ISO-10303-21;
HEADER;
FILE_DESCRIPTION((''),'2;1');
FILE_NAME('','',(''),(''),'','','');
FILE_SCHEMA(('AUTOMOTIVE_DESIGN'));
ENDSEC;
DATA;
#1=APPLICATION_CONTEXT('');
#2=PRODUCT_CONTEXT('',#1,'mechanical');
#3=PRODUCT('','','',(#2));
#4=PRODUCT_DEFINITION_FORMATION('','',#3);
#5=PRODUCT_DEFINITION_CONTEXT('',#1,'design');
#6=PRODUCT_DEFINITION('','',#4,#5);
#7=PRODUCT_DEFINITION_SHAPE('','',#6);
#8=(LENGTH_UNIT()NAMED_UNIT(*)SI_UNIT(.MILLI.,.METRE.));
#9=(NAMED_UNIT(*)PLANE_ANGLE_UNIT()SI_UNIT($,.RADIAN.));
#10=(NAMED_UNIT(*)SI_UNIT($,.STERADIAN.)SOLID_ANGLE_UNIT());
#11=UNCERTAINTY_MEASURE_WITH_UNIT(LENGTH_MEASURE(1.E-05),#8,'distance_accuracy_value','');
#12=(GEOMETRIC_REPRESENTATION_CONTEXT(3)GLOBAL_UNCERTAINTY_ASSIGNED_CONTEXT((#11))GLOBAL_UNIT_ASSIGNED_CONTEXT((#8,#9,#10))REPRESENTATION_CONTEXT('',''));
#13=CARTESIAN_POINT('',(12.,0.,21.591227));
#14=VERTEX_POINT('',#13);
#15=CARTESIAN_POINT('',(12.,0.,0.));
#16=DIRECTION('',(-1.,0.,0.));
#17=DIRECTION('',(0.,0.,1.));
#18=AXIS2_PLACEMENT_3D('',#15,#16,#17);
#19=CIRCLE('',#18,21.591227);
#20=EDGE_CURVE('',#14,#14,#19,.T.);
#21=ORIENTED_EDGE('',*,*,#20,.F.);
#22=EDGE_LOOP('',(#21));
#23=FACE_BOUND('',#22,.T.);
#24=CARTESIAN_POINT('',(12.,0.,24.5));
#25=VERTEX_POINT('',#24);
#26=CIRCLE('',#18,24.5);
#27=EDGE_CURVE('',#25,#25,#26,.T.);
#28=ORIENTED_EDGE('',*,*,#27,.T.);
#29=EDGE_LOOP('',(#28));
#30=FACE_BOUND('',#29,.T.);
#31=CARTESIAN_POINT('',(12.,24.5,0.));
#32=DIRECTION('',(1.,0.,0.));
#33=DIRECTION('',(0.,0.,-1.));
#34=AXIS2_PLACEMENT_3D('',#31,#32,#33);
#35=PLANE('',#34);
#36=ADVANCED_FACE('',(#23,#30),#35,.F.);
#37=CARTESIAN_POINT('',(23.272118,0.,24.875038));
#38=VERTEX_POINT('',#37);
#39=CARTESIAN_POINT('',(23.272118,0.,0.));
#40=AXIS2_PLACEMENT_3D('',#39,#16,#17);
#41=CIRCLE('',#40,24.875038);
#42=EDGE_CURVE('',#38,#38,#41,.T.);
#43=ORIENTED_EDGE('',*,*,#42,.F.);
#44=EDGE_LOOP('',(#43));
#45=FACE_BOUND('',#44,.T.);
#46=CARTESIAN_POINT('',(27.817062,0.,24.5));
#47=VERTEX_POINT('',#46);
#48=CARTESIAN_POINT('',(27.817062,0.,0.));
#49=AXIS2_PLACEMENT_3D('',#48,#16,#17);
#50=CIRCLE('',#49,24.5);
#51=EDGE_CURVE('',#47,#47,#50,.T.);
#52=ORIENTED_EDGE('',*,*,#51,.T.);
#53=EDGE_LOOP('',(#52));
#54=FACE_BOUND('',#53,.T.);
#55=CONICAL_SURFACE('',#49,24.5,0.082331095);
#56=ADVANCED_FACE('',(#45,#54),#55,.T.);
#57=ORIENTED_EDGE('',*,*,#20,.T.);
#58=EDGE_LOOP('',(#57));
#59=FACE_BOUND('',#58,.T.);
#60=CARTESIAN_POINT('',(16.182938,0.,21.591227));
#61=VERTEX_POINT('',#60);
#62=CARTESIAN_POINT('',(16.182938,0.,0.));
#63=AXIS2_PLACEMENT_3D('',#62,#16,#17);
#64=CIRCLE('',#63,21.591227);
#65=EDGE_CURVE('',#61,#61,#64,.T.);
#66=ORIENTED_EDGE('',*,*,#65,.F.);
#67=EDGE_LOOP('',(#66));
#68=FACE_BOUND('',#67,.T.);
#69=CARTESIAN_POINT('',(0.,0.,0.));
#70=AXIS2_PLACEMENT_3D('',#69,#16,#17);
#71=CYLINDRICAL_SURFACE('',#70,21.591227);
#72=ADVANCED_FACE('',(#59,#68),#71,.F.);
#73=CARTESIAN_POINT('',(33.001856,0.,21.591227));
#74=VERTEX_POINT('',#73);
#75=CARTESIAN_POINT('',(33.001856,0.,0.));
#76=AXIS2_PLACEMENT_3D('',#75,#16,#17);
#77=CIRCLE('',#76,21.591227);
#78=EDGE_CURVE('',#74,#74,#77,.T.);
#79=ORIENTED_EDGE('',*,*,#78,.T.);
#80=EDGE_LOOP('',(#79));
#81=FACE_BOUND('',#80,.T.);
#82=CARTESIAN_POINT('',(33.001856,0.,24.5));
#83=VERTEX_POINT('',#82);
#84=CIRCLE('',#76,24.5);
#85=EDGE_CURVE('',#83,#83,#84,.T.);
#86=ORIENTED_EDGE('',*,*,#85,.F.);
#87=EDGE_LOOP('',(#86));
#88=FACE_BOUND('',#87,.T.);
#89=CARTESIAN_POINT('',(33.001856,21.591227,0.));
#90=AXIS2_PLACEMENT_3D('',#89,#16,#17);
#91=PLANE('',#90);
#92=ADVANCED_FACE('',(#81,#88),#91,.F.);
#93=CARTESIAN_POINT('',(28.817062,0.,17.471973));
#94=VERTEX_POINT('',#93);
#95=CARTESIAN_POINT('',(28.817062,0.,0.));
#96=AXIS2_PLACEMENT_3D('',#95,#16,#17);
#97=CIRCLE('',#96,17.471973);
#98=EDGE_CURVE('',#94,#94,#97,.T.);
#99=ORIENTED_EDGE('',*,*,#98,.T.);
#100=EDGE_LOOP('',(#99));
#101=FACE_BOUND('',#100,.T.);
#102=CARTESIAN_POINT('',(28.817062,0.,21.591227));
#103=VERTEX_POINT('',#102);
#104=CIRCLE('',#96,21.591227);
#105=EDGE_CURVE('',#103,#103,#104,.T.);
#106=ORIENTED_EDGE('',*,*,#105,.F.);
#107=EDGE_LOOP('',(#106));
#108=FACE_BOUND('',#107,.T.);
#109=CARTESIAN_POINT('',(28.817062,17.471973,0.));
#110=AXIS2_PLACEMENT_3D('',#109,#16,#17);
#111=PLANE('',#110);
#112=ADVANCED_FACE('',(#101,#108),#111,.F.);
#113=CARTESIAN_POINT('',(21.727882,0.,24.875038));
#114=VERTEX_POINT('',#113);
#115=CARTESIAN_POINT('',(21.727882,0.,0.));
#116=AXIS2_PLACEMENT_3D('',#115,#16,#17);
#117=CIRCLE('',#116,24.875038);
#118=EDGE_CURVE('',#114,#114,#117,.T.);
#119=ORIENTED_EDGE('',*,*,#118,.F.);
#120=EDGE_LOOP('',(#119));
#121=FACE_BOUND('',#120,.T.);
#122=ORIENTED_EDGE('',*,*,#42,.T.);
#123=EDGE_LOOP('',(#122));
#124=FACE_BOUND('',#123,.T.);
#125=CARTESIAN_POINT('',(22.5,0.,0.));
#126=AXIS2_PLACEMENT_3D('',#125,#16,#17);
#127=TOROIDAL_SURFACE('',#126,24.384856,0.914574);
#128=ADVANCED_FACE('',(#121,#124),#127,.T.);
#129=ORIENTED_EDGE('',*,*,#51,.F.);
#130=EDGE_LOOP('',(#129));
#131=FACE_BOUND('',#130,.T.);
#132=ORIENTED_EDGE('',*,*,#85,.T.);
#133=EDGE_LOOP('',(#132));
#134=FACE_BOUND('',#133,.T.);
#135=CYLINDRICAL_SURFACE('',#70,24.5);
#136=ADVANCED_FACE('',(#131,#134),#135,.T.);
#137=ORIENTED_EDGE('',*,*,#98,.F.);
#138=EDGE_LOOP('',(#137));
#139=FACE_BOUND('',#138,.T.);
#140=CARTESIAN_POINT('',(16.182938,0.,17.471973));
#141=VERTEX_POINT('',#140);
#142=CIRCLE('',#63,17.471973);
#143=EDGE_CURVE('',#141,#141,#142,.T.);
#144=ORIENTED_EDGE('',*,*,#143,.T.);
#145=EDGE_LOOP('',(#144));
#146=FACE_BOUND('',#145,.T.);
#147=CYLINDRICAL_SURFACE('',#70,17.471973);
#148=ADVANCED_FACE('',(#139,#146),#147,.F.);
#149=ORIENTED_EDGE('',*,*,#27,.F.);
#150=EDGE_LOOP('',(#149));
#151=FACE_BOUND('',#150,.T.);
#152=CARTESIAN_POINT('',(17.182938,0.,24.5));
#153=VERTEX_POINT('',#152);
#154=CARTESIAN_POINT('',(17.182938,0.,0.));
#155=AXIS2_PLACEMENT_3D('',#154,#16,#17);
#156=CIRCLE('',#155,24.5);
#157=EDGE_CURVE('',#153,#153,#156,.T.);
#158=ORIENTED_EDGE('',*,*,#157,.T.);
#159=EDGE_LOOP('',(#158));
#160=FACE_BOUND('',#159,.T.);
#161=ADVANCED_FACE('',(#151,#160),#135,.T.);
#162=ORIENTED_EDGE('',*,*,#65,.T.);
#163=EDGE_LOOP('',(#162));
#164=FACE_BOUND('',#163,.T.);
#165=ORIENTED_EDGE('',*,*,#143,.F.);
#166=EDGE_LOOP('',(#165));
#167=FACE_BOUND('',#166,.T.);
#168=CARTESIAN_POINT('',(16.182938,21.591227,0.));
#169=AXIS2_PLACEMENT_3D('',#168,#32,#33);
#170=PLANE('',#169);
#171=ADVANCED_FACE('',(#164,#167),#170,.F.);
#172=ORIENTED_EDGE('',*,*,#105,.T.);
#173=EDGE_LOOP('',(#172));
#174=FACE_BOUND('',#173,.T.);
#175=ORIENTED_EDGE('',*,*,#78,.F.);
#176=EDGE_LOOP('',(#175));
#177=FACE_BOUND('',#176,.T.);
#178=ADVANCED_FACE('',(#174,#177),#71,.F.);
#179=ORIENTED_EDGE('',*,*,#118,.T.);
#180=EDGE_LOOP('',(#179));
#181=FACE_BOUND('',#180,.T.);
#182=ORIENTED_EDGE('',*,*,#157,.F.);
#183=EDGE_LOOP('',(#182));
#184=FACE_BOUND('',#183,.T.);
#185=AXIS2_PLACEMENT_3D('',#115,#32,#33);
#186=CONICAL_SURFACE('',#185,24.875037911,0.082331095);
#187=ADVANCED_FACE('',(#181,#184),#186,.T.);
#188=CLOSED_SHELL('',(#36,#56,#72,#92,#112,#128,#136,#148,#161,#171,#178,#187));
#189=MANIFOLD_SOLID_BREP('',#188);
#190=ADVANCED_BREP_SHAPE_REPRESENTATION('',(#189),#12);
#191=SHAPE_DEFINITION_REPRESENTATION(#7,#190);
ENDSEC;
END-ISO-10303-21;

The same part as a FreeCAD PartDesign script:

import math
import FreeCAD as App
import Part
import Sketcher

V = App.Vector

doc = App.newDocument("Part")
body = doc.addObject("PartDesign::Body", "Body")

sketch1 = body.newObject("Sketcher::SketchObject", "Sketch")
sketch1.AttachmentSupport = (doc.getObject("XY_Plane"), [""])
sketch1.MapMode = "FlatFace"
sketch1.addGeometry([
    Part.LineSegment(V(12, 24.5, 0), V(12, 21.6, 0)),
    Part.LineSegment(V(12, 21.6, 0), V(16.2, 21.6, 0)),
    Part.LineSegment(V(16.2, 21.6, 0), V(16.2, 17.5, 0)),
    Part.LineSegment(V(16.2, 17.5, 0), V(28.8, 17.5, 0)),
    Part.LineSegment(V(28.8, 17.5, 0), V(28.8, 21.6, 0)),
    Part.LineSegment(V(28.8, 21.6, 0), V(33, 21.6, 0)),
    Part.LineSegment(V(33, 21.6, 0), V(33, 24.5, 0)),
    Part.LineSegment(V(33, 24.5, 0), V(27.8, 24.5, 0)),
    Part.LineSegment(V(27.8, 24.5, 0), V(24.7, 24.8, 0)),
    Part.LineSegment(V(24.7, 24.8, 0), V(23.3, 24.9, 0)),
    Part.ArcOfCircle(Part.Circle(V(22.5, 24.4, 0), V(0, 0, 1), 0.9), math.radians(32), math.radians(148)),
    Part.LineSegment(V(21.7, 24.9, 0), V(20.3, 24.8, 0)),
    Part.LineSegment(V(20.3, 24.8, 0), V(17.2, 24.5, 0)),
    Part.LineSegment(V(17.2, 24.5, 0), V(12, 24.5, 0)),
], False)
sketch1.addConstraint([
    Sketcher.Constraint("Coincident", 0, 2, 1, 1),
    Sketcher.Constraint("Coincident", 1, 2, 2, 1),
    Sketcher.Constraint("Coincident", 2, 2, 3, 1),
    Sketcher.Constraint("Coincident", 3, 2, 4, 1),
    Sketcher.Constraint("Coincident", 4, 2, 5, 1),
    Sketcher.Constraint("Coincident", 5, 2, 6, 1),
    Sketcher.Constraint("Coincident", 6, 2, 7, 1),
    Sketcher.Constraint("Coincident", 7, 2, 8, 1),
    Sketcher.Constraint("Coincident", 8, 2, 9, 1),
    Sketcher.Constraint("Coincident", 9, 2, 10, 1),
    Sketcher.Constraint("Coincident", 10, 2, 11, 1),
    Sketcher.Constraint("Coincident", 11, 2, 12, 1),
    Sketcher.Constraint("Coincident", 12, 2, 13, 1),
    Sketcher.Constraint("Coincident", 13, 2, 0, 1),
    Sketcher.Constraint("Vertical", 0),
    Sketcher.Constraint("Horizontal", 1),
    Sketcher.Constraint("Vertical", 2),
    Sketcher.Constraint("Horizontal", 3),
    Sketcher.Constraint("Vertical", 4),
    Sketcher.Constraint("Horizontal", 5),
    Sketcher.Constraint("Vertical", 6),
    Sketcher.Constraint("Horizontal", 7),
    Sketcher.Constraint("Horizontal", 13),
    Sketcher.Constraint("Parallel", 8, 9),
    Sketcher.Constraint("Parallel", 11, 12),
    Sketcher.Constraint("Horizontal", 1, 2, 4, 2),
    Sketcher.Constraint("Horizontal", 9, 2, 10, 2),
    Sketcher.Constraint("Horizontal", 8, 2, 11, 2),
    Sketcher.Constraint("Horizontal", 7, 2, 12, 2),
    Sketcher.Constraint("Equal", 9, 11),
    Sketcher.Constraint("DistanceX", -1, 1, 0, 2, 12.0),
    Sketcher.Constraint("DistanceX", 7, 2, 4, 2, 1.0),
    Sketcher.Constraint("DistanceX", 1, 2, 12, 2, 1.0),
    Sketcher.Constraint("DistanceX", -1, 1, 10, 3, 22.5),
    Sketcher.Constraint("DistanceY", -1, 1, 6, 2, 24.5),
    Sketcher.Constraint("Radius", 10, 0.914574),
    Sketcher.Constraint("DistanceX", 1, 1, 1, 2, 4.182938),
    Sketcher.Constraint("Distance", 8, 3.080649),
    Sketcher.Constraint("Distance", 9, 1.479742),
    Sketcher.Constraint("DistanceX", 5, 1, 5, 2, 4.184795),
    Sketcher.Constraint("DistanceY", 0, 2, 0, 1, 2.908773),
    Sketcher.Constraint("DistanceY", 2, 2, 2, 1, 4.119254),
    Sketcher.Constraint("DistanceX", -1, 1, 9, 2, 23.272118),
])
revolution = body.newObject("PartDesign::Revolution", "Revolution")
revolution.Profile = sketch1
revolution.ReferenceAxis = (sketch1, ["H_Axis"])
revolution.Angle = 360

doc.recompute()
